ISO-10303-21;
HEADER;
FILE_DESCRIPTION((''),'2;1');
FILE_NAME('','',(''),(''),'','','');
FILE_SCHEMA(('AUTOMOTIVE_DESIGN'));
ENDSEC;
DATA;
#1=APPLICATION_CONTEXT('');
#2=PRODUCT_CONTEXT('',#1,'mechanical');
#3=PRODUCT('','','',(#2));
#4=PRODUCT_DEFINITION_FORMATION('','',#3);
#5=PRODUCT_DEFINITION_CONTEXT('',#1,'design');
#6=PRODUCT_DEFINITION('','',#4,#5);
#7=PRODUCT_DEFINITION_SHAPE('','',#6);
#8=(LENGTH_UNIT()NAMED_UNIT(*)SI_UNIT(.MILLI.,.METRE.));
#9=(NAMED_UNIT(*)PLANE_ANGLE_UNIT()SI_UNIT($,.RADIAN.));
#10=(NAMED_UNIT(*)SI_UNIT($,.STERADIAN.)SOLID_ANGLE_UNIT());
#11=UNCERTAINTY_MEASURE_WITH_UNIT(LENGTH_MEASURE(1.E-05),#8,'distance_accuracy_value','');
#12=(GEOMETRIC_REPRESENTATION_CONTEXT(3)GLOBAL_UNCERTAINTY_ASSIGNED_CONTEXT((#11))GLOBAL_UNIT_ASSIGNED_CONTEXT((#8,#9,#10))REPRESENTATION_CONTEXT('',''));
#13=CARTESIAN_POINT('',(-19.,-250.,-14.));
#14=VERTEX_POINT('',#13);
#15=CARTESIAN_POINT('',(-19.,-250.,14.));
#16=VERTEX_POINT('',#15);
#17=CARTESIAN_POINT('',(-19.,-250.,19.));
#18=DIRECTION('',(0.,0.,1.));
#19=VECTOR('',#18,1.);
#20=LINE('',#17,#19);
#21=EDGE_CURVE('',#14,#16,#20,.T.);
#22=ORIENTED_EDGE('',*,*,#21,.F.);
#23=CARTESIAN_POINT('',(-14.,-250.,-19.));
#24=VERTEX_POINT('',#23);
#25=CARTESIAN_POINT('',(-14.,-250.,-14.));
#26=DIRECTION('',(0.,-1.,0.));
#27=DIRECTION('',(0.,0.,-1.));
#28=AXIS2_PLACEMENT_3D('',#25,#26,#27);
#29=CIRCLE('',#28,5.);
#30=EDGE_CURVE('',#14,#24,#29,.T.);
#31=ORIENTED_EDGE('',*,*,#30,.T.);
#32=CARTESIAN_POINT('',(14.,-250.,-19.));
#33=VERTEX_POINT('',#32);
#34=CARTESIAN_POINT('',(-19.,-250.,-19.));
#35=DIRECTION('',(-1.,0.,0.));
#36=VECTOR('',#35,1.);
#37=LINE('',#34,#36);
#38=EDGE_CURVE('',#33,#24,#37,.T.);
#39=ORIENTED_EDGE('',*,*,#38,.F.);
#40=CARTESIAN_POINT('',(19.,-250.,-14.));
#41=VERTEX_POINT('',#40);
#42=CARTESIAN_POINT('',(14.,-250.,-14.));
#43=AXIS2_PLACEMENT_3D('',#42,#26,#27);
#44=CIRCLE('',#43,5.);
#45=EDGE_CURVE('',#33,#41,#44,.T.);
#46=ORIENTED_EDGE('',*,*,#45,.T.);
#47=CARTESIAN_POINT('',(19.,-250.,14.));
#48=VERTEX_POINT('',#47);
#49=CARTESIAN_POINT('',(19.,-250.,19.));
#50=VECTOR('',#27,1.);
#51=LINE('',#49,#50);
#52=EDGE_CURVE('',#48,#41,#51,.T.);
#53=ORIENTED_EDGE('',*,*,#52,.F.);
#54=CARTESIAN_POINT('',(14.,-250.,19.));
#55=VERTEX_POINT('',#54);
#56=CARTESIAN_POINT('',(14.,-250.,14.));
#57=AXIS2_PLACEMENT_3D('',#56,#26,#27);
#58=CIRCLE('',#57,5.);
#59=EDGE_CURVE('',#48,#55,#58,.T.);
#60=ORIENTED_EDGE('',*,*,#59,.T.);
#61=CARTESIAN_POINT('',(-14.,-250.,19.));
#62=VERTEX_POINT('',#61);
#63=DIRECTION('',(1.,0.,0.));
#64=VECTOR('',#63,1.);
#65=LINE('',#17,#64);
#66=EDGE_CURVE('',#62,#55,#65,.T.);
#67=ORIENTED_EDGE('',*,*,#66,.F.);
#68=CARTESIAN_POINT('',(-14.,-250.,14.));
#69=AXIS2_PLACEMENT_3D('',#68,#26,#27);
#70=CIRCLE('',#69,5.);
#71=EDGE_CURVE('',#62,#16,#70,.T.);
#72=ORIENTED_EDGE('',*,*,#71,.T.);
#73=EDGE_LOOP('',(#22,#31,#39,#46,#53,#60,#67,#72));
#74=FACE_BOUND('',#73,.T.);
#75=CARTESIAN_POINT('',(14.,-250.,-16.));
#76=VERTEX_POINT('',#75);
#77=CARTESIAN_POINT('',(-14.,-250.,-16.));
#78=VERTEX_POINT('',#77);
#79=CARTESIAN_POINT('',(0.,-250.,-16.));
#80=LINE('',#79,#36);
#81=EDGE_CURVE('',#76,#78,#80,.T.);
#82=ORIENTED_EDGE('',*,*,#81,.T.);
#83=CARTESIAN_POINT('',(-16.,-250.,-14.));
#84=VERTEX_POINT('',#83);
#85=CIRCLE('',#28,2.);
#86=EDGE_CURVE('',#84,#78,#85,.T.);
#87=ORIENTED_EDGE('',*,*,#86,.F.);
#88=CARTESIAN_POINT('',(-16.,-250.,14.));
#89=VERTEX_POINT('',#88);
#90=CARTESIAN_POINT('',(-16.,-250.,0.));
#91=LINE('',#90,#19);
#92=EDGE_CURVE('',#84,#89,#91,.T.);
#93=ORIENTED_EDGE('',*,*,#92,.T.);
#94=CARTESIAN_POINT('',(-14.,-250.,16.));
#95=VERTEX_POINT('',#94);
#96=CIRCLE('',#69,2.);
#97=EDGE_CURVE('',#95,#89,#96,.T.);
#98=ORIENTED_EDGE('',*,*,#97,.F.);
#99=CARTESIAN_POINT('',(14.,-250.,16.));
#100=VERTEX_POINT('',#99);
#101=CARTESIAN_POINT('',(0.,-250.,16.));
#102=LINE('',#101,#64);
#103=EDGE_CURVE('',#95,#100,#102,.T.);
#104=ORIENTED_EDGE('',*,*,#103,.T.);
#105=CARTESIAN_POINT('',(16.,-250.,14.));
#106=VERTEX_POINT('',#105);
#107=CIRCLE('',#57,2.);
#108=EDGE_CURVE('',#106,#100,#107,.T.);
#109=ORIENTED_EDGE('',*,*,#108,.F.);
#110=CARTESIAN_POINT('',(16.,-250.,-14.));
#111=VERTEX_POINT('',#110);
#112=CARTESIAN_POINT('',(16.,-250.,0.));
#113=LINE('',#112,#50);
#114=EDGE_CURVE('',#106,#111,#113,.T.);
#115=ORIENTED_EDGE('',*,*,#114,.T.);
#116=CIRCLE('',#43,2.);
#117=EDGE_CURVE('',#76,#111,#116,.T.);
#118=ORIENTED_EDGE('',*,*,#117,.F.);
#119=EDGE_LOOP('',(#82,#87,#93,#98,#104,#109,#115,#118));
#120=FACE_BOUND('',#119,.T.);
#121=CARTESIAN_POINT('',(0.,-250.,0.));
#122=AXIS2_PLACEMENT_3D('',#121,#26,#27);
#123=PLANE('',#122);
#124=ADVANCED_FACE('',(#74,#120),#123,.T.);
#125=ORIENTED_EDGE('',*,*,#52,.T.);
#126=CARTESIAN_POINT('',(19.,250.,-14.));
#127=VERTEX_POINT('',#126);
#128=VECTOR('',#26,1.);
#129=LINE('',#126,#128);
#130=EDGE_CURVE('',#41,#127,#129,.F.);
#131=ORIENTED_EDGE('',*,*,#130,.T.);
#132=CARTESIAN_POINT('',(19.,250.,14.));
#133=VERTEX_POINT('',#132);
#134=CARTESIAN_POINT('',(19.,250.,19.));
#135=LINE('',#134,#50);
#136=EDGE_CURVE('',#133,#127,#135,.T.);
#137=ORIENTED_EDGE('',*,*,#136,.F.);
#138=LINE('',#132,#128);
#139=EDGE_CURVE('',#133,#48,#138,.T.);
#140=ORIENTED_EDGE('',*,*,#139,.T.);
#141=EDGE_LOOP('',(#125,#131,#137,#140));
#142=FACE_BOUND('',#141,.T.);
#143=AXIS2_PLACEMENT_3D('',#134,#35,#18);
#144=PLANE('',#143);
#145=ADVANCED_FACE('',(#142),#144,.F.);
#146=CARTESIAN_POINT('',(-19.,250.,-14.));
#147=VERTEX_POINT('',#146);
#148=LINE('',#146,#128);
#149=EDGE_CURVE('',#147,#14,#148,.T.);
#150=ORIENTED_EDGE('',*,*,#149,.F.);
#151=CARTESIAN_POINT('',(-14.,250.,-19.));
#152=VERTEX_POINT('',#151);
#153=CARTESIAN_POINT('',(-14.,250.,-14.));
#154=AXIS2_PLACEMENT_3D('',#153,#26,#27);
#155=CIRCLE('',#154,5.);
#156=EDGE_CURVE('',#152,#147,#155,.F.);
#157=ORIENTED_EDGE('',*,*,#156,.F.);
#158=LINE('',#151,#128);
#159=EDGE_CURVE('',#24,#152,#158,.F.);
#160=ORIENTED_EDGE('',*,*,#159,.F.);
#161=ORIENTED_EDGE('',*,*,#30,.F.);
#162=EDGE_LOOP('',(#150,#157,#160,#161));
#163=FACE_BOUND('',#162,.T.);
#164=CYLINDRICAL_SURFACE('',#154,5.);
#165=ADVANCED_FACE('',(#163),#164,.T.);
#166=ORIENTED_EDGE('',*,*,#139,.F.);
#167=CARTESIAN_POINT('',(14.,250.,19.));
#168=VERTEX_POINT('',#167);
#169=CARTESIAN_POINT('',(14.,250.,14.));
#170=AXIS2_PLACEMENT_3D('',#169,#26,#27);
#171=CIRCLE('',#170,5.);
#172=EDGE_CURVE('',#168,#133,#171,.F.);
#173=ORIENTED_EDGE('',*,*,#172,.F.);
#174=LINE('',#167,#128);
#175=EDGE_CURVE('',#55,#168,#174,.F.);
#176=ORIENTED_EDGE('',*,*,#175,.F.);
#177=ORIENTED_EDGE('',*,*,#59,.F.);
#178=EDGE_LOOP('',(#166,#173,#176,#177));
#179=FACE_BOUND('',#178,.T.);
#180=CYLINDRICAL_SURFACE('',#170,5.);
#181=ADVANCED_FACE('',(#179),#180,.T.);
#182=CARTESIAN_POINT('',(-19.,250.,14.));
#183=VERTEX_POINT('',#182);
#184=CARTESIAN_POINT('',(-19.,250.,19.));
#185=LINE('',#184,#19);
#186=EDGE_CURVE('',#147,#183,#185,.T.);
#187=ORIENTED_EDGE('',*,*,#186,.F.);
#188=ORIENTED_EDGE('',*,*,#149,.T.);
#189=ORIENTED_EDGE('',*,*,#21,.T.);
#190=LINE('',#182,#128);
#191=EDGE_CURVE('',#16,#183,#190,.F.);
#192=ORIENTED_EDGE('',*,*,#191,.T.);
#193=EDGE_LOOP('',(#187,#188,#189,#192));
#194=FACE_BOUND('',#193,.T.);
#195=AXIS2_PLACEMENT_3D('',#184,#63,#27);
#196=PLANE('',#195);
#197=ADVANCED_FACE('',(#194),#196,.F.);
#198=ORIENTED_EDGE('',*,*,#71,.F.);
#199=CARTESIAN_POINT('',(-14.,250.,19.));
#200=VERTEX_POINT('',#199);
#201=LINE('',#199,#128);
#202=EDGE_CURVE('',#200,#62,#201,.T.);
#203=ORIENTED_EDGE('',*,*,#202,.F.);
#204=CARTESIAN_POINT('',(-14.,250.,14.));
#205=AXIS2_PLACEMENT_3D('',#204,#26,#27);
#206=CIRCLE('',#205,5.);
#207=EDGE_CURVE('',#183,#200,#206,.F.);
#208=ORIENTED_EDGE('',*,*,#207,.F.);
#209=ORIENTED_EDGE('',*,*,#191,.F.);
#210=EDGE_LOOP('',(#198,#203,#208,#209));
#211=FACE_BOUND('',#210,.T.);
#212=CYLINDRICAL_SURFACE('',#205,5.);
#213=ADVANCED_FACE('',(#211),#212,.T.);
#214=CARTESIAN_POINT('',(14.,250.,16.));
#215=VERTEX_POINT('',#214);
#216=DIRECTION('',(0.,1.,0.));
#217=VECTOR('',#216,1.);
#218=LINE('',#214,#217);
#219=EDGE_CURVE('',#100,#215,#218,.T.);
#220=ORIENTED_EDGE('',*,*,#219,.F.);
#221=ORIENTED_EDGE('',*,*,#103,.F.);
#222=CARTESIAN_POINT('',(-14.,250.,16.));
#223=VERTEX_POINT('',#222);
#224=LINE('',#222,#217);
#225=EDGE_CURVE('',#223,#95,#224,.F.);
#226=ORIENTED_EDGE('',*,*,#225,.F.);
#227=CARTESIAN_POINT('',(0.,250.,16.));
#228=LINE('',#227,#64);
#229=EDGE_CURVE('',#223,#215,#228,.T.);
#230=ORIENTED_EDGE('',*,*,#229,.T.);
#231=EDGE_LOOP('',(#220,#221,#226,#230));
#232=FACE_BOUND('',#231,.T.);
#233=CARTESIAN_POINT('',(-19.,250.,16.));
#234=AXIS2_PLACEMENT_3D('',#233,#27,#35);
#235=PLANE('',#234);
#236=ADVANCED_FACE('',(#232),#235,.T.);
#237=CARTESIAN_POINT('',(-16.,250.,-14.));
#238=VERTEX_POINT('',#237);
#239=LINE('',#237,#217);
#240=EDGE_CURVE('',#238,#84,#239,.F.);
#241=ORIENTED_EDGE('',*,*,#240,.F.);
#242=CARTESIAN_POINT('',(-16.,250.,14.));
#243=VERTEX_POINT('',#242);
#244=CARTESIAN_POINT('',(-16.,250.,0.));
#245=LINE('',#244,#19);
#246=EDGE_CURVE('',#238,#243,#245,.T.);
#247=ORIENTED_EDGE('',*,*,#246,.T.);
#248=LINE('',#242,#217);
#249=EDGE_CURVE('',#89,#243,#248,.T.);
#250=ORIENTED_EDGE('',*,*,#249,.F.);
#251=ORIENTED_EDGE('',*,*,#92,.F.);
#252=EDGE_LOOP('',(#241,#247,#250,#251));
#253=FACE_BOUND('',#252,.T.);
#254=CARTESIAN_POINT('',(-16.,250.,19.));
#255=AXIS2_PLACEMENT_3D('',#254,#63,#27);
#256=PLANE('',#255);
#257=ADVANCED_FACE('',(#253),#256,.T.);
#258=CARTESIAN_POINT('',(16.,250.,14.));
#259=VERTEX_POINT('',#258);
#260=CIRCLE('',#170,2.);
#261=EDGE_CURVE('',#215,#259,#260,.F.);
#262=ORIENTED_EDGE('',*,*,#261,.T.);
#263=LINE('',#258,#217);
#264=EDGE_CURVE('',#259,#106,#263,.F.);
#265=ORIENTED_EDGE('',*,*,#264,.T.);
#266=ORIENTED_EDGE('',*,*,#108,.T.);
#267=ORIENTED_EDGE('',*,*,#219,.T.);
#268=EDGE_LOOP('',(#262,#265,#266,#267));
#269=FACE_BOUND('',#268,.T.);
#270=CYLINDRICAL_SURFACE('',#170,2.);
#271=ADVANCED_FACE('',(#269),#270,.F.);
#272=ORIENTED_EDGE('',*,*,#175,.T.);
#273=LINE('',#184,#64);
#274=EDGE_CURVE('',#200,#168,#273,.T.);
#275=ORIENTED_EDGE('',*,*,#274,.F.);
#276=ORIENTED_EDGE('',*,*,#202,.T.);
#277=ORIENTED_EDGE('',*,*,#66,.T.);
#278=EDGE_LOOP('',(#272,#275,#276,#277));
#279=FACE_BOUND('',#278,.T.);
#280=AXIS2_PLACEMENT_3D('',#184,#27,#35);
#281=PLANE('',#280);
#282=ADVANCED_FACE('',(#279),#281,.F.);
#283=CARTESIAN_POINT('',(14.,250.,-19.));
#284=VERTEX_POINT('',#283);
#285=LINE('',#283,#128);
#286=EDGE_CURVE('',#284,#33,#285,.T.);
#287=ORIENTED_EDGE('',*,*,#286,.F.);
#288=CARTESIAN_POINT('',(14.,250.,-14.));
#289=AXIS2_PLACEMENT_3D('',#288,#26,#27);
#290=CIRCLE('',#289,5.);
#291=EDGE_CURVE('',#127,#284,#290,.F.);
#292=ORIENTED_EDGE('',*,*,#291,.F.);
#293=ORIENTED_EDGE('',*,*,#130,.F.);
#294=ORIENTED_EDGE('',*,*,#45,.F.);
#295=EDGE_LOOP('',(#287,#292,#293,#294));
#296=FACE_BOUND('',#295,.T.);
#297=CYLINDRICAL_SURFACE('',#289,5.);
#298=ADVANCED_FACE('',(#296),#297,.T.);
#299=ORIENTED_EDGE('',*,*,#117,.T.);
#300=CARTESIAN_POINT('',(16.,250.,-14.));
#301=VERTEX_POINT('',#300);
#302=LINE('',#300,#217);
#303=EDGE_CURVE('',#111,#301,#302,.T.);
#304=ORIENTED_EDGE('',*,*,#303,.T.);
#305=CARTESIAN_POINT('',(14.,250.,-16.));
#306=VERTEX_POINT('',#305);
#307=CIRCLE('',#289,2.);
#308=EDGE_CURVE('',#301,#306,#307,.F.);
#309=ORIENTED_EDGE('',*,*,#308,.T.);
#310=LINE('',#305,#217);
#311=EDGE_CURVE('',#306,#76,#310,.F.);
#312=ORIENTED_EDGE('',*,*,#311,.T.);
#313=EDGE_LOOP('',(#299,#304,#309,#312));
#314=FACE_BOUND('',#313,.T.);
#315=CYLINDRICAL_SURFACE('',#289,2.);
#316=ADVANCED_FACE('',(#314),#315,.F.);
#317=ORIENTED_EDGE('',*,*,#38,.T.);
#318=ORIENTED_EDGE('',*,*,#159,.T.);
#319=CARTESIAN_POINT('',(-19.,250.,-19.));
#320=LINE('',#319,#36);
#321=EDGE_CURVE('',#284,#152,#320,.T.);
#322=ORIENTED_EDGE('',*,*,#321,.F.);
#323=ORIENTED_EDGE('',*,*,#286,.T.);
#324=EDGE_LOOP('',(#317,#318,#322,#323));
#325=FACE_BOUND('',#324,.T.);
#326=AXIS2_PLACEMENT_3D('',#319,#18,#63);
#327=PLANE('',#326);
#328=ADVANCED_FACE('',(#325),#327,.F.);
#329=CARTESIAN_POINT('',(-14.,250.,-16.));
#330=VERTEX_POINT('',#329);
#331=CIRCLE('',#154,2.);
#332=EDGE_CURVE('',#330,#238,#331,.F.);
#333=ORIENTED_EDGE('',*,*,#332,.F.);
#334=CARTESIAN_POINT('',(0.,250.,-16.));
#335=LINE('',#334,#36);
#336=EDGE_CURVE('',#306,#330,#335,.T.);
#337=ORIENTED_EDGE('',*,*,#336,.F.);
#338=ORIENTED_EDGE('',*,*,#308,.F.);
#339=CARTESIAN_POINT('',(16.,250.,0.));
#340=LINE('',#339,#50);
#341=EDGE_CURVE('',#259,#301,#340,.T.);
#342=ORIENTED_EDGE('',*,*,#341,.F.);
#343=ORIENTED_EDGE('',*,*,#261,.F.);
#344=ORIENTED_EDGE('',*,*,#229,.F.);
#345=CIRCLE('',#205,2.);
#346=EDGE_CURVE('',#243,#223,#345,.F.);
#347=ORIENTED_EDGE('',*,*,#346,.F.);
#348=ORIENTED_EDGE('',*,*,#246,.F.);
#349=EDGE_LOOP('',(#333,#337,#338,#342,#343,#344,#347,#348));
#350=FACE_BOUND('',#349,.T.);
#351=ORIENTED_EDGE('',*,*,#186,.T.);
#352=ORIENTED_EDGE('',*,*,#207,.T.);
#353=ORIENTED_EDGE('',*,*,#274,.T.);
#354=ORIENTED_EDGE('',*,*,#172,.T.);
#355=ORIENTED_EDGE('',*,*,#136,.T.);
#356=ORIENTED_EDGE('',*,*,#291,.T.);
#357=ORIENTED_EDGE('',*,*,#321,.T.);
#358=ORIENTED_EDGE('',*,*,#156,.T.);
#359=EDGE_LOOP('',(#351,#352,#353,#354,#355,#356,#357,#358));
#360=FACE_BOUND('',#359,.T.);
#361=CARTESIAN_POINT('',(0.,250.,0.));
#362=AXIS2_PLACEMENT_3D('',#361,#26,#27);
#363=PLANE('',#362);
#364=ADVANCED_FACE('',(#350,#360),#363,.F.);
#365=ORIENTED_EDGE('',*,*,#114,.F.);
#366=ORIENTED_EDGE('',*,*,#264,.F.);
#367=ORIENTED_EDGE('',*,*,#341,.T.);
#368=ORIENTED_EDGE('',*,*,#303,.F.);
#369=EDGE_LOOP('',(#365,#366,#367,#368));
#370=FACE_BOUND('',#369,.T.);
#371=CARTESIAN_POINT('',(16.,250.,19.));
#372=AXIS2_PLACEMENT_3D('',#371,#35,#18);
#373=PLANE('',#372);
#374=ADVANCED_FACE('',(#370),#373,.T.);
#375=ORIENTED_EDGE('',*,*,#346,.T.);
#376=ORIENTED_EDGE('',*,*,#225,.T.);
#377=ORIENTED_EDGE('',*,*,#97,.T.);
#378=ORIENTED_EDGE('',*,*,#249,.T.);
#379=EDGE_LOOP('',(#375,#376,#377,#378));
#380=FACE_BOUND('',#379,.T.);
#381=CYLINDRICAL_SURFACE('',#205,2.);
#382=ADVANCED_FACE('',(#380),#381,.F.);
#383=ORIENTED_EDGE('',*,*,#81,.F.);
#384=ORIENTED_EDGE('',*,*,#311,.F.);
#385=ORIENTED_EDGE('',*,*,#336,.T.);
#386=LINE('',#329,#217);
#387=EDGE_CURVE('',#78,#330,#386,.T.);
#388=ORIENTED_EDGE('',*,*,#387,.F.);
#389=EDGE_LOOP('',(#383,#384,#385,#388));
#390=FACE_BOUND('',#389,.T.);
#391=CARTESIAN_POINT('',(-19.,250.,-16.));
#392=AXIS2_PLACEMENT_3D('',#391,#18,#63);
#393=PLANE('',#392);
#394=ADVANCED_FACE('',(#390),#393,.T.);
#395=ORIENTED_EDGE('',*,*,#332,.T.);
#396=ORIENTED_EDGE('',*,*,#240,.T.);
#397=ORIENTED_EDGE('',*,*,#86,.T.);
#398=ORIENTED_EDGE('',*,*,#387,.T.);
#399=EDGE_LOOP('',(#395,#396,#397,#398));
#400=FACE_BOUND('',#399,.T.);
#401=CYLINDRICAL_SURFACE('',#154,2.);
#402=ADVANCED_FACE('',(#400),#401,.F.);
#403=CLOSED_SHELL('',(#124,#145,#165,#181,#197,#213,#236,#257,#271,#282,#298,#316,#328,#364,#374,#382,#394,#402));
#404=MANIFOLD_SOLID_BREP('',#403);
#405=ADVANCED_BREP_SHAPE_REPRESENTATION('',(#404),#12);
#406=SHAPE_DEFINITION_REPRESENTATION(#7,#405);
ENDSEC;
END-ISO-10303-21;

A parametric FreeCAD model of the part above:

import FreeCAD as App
import Part
import Sketcher
from FreeCAD import Vector


def edges_at(feature, points):
    """Names of the edges that pass closest to the given points."""
    edges = feature.Shape.Edges
    near = lambda p: min(range(len(edges)), key=lambda i: edges[i].distToShape(Part.Vertex(*p))[0])
    return sorted({f"Edge{near(p) + 1}" for p in points})


def faces_at(feature, points):
    """Names of the faces that lie closest to the given points."""
    faces = feature.Shape.Faces
    near = lambda p: min(range(len(faces)), key=lambda i: faces[i].distToShape(Part.Vertex(*p))[0])
    return sorted({f"Face{near(p) + 1}" for p in points})

doc = App.newDocument("Part")
body = doc.addObject("PartDesign::Body", "Body")

# Sketch on XZ plane
sketch1 = body.newObject("Sketcher::SketchObject", "Sketch")
sketch1.AttachmentSupport = (doc.getObject("XZ_Plane"), [""])
sketch1.MapMode = "FlatFace"
sketch1.addGeometry(Part.LineSegment(Vector(-19, -19, 0), Vector(-19, 19, 0)), False)
sketch1.addGeometry(Part.LineSegment(Vector(-19, 19, 0), Vector(19, 19, 0)), False)
sketch1.addGeometry(Part.LineSegment(Vector(19, 19, 0), Vector(19, -19, 0)), False)
sketch1.addGeometry(Part.LineSegment(Vector(19, -19, 0), Vector(-19, -19, 0)), False)
sketch1.addConstraint(Sketcher.Constraint("Coincident", 0, 2, 1, 1))
sketch1.addConstraint(Sketcher.Constraint("Coincident", 1, 2, 2, 1))
sketch1.addConstraint(Sketcher.Constraint("Coincident", 2, 2, 3, 1))
sketch1.addConstraint(Sketcher.Constraint("Coincident", 3, 2, 0, 1))
sketch1.addConstraint(Sketcher.Constraint("Vertical", 0))
sketch1.addConstraint(Sketcher.Constraint("Horizontal", 1))
sketch1.addConstraint(Sketcher.Constraint("Vertical", 2))
sketch1.addConstraint(Sketcher.Constraint("Horizontal", 3))
sketch1.addConstraint(Sketcher.Constraint("Symmetric", 0, 2, 2, 2, -1, 1))
sketch1.addConstraint(Sketcher.Constraint("Equal", 3, 0))
sketch1.addConstraint(Sketcher.Constraint("DistanceX", 1, 1, 1, 2, 38.0))
pad1 = body.newObject("PartDesign::Pad", "Pad")
pad1.Profile = sketch1
pad1.Length = 500
pad1.Midplane = True
doc.recompute()

fillet = body.newObject("PartDesign::Fillet", "Fillet")
fillet.Base = (pad1, edges_at(pad1, [
    (19, 0, 19),
    (-19, 0, 19),
    (-19, 0, -19),
    (19, 0, -19),
]))
fillet.Radius = 5
doc.recompute()

thickness = body.newObject("PartDesign::Thickness", "Thickness")
thickness.Base = (fillet, faces_at(fillet, [(0, 250, 0), (0, -250, 0)]))
thickness.Value = 3
thickness.Reversed = True
thickness.Join = "Intersection"

doc.recompute()
